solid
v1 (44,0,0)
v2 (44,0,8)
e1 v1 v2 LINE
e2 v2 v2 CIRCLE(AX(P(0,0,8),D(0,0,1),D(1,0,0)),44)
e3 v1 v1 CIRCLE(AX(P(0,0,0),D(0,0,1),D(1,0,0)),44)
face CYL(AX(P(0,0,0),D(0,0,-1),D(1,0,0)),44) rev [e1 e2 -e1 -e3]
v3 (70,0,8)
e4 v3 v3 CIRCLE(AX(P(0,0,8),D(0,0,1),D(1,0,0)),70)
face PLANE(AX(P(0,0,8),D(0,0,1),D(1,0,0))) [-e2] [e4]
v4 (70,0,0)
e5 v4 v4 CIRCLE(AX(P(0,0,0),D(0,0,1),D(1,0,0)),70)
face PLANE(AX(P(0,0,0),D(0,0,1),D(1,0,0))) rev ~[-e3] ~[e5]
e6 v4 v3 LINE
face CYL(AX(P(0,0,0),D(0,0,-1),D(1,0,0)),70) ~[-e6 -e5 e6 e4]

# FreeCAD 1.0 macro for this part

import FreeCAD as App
import Part
import Sketcher
from FreeCAD import Vector
Q = App.Units.Quantity

doc = App.newDocument("Part")
params = doc.addObject("Spreadsheet::Sheet", "Params")
for row, (alias, value) in enumerate([
    ("sketch1_diameter", "140 mm"),
    ("sketch1_diameter2", "88 mm"),
    ("pad1_length", "8 mm"),
], start=1):
    params.set(f"A{row}", alias)
    params.set(f"B{row}", "=" + value)
    params.setAlias(f"B{row}", alias)

body = doc.addObject("PartDesign::Body", "Body")

# Sketch on XY plane
sketch1 = doc.addObject("Sketcher::SketchObject", "Sketch")
body.addObject(sketch1)
sketch1.AttachmentSupport = (doc.XY_Plane, [""])
sketch1.MapMode = "FlatFace"
sketch1.addGeometry(Part.Circle(Vector(0, 0, 0), Vector(0, 0, 1), 70), False)
sketch1.addGeometry(Part.Circle(Vector(0, 0, 0), Vector(0, 0, 1), 44), False)
sketch1.addConstraint(Sketcher.Constraint("Coincident", 0, 3, -1, 1))
sketch1.addConstraint(Sketcher.Constraint("Coincident", 1, 3, -1, 1))
sketch1.addConstraint(Sketcher.Constraint("Diameter", 0, Q("140 mm")))
sketch1.addConstraint(Sketcher.Constraint("Diameter", 1, Q("88 mm")))
sketch1.setExpression("Constraints[2]", "Params.sketch1_diameter")
sketch1.setExpression("Constraints[3]", "Params.sketch1_diameter2")
pad1 = doc.addObject("PartDesign::Pad", "Pad")
body.addObject(pad1)
pad1.Profile = sketch1
pad1.setExpression("Length", "Params.pad1_length")

doc.recompute()
